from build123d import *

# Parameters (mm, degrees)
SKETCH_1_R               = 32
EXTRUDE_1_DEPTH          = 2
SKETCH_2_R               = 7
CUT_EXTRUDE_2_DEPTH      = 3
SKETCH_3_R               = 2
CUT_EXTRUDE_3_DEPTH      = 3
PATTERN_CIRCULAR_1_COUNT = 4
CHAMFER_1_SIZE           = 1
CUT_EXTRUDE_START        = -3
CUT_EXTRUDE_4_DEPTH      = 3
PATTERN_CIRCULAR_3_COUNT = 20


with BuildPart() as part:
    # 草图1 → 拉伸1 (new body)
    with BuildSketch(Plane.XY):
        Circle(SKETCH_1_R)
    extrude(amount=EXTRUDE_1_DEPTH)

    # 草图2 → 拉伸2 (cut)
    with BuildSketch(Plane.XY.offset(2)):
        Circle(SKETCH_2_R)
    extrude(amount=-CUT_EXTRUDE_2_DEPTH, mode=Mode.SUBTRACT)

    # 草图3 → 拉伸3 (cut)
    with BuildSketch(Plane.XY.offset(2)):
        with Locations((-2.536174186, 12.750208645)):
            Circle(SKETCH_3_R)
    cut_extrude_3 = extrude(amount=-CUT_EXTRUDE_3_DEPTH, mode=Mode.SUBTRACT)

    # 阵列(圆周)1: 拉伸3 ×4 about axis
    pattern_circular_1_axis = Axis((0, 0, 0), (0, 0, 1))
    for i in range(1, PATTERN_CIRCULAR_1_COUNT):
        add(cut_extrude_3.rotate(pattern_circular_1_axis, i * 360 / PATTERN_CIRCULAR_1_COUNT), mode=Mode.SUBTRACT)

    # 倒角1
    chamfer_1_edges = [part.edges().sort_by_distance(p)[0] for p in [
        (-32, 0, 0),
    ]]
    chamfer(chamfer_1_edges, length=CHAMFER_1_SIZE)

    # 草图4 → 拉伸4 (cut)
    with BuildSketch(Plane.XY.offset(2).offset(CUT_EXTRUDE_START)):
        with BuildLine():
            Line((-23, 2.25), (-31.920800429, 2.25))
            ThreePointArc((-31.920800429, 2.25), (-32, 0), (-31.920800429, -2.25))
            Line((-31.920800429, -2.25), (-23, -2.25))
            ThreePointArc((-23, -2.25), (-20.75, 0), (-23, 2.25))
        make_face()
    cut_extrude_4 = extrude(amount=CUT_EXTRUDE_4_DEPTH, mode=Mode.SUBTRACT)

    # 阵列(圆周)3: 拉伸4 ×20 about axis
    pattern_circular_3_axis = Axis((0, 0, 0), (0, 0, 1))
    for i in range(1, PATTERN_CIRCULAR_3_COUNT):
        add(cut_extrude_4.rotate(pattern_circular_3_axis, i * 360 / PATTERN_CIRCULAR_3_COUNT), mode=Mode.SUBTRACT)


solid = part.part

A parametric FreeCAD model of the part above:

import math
import FreeCAD as App
import Part
import Sketcher
from FreeCAD import Vector
Q = App.Units.Quantity


def edges_at(feature, points):
    """Names of the edges that pass closest to the given points."""
    edges = feature.Shape.Edges
    near = lambda p: min(range(len(edges)), key=lambda i: edges[i].distToShape(Part.Vertex(*p))[0])
    return sorted({f"Edge{near(p) + 1}" for p in points})

doc = App.newDocument("Part")
body = doc.addObject("PartDesign::Body", "Body")

sketch1 = body.newObject("Sketcher::SketchObject", "Sketch")
sketch1.AttachmentSupport = (doc.getObject("XY_Plane"), [""])
sketch1.MapMode = "FlatFace"
sketch1.addGeometry(Part.Circle(Vector(0, 0, 0), Vector(0, 0, 1), 32), False)
sketch1.addConstraint(Sketcher.Constraint("Coincident", 0, 3, -1, 1))
sketch1.addConstraint(Sketcher.Constraint("Diameter", 0, Q("64 mm")))
pad1 = body.newObject("PartDesign::Pad", "Pad")
pad1.Profile = sketch1
pad1.Length = 2

sketch2 = body.newObject("Sketcher::SketchObject", "Sketch001")
sketch2.AttachmentSupport = (doc.getObject("XY_Plane"), [""])
sketch2.MapMode = "FlatFace"
sketch2.AttachmentOffset = App.Placement(Vector(0, 0, 2), App.Rotation())
sketch2.addGeometry(Part.Circle(Vector(0, 0, 0), Vector(0, 0, 1), 7), False)
sketch2.addConstraint(Sketcher.Constraint("Coincident", 0, 3, -1, 1))
sketch2.addConstraint(Sketcher.Constraint("Diameter", 0, Q("14 mm")))
pocket1 = body.newObject("PartDesign::Pocket", "Pocket")
pocket1.Profile = sketch2
pocket1.Length = 3

sketch3 = body.newObject("Sketcher::SketchObject", "Sketch002")
sketch3.AttachmentSupport = (doc.getObject("XY_Plane"), [""])
sketch3.MapMode = "FlatFace"
sketch3.AttachmentOffset = App.Placement(Vector(0, 0, 2), App.Rotation())
sketch3.addGeometry(Part.Circle(Vector(-2.536174, 12.750209, 0), Vector(0, 0, 1), 2), False)
sketch3.addConstraint(Sketcher.Constraint("Diameter", 0, Q("4 mm")))
sketch3.addConstraint(Sketcher.Constraint("DistanceY", -1, 1, 0, 3, Q("12.750209 mm")))
sketch3.addConstraint(Sketcher.Constraint("DistanceX", 0, 3, -1, 1, Q("2.536174 mm")))
pocket2 = body.newObject("PartDesign::Pocket", "Pocket001")
pocket2.Profile = sketch3
pocket2.Length = 3
doc.recompute()

polarpattern = body.newObject("PartDesign::PolarPattern", "PolarPattern")
polarpattern.Originals = [pocket2]
polarpattern.Axis = (doc.getObject("Z_Axis"), [""])
polarpattern.Angle = 360
polarpattern.Occurrences = 4
body.Tip = polarpattern
doc.recompute()

chamfer = body.newObject("PartDesign::Chamfer", "Chamfer")
chamfer.Base = (polarpattern, edges_at(polarpattern, [(-32, 0, 0)]))
chamfer.Size = 1

sketch4 = body.newObject("Sketcher::SketchObject", "Sketch003")
sketch4.AttachmentSupport = (doc.getObject("XY_Plane"), [""])
sketch4.MapMode = "FlatFace"
sketch4.AttachmentOffset = App.Placement(Vector(0, 0, -1), App.Rotation())
sketch4.addGeometry(Part.LineSegment(Vector(-23, 2.25, 0), Vector(-31.9208, 2.25, 0)), False)
sketch4.addGeometry(Part.ArcOfCircle(Part.Circle(Vector(0, 0, 0), Vector(0, 0, 1), 32), math.radians(175.968064), math.radians(184.031936)), False)
sketch4.addGeometry(Part.LineSegment(Vector(-31.9208, -2.25, 0), Vector(-23, -2.25, 0)), False)
sketch4.addGeometry(Part.ArcOfCircle(Part.Circle(Vector(-23, 0, 0), Vector(0, 0, 1), 2.25), math.radians(-90), math.radians(90)), False)
sketch4.addConstraint(Sketcher.Constraint("Coincident", 0, 2, 1, 1))
sketch4.addConstraint(Sketcher.Constraint("Coincident", 1, 2, 2, 1))
sketch4.addConstraint(Sketcher.Constraint("Tangent", 2, 2, 3, 1))
sketch4.addConstraint(Sketcher.Constraint("Tangent", 3, 2, 0, 1))
sketch4.addConstraint(Sketcher.Constraint("Horizontal", 0))
sketch4.addConstraint(Sketcher.Constraint("Horizontal", 2))
sketch4.addConstraint(Sketcher.Constraint("Coincident", 1, 3, -1, 1))
sketch4.addConstraint(Sketcher.Constraint("PointOnObject", 3, 3, -1))
sketch4.addConstraint(Sketcher.Constraint("Radius", 1, Q("32 mm")))
sketch4.addConstraint(Sketcher.Constraint("Radius", 3, Q("2.25 mm")))
sketch4.addConstraint(Sketcher.Constraint("DistanceX", 3, 3, -1, 1, Q("23 mm")))
pocket3 = body.newObject("PartDesign::Pocket", "Pocket002")
pocket3.Profile = sketch4
pocket3.Length = 3
pocket3.Reversed = True
doc.recompute()

polarpattern2 = body.newObject("PartDesign::PolarPattern", "PolarPattern001")
polarpattern2.Originals = [pocket3]
polarpattern2.Axis = (doc.getObject("Z_Axis"), [""])
polarpattern2.Angle = 360
polarpattern2.Occurrences = 20
body.Tip = polarpattern2

doc.recompute()
